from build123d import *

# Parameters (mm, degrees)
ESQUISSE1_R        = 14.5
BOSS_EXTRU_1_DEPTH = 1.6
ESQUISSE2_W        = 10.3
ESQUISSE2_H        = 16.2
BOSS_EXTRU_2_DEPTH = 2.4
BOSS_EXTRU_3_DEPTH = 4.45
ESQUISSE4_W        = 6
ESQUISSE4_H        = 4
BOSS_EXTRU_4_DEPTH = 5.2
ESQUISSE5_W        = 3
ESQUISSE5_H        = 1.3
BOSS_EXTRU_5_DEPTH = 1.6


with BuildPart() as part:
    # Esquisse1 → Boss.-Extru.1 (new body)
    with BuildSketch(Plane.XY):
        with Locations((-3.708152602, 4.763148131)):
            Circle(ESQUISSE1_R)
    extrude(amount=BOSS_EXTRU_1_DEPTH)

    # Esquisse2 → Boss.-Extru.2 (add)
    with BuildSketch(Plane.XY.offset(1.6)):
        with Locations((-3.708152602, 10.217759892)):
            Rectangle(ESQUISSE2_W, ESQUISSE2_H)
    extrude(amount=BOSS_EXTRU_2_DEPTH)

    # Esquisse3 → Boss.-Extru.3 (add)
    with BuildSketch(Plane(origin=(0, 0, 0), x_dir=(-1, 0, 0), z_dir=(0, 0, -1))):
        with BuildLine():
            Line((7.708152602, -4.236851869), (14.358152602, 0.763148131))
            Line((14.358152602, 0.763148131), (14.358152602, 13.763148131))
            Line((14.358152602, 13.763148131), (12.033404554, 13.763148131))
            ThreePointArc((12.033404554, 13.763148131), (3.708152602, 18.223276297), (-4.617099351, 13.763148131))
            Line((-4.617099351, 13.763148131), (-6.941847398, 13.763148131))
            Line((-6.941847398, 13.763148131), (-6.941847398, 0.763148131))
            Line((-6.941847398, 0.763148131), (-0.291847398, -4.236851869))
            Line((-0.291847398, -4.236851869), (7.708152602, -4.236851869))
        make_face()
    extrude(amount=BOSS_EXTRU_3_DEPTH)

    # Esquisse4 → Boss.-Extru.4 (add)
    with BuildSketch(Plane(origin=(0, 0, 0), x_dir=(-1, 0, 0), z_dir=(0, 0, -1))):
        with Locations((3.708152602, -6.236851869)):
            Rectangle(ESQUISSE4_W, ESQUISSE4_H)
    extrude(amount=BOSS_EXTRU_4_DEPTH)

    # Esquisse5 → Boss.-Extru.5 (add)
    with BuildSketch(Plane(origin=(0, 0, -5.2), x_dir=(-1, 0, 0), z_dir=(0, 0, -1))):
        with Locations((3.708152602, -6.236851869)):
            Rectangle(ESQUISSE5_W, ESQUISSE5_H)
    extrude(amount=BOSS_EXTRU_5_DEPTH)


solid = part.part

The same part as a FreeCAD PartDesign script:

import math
import FreeCAD as App
import Part
import Sketcher
Q = App.Units.Quantity

doc = App.newDocument("Part")
params = doc.addObject("Spreadsheet::Sheet", "Params")
for row, (alias, value) in enumerate([
    ("sketch1_diameter", "29 mm"),
    ("pad1_length", "1.6 mm"),
    ("sketch2_width", "10.3 mm"),
    ("sketch2_height", "16.2 mm"),
    ("pad2_length", "2.4 mm"),
    ("sketch3_radius", "10 mm"),
    ("sketch3_width", "8 mm"),
    ("sketch3_height", "13 mm"),
    ("pad3_length", "4.45 mm"),
    ("sketch4_width", "6 mm"),
    ("sketch4_height", "4 mm"),
    ("pad4_length", "5.2 mm"),
    ("sketch5_width", "3 mm"),
    ("sketch5_height", "1.3 mm"),
    ("pad5_length", "1.6 mm"),
], start=1):
    params.set(f"A{row}", alias)
    params.set(f"B{row}", "=" + value)
    params.setAlias(f"B{row}", alias)

body = doc.addObject("PartDesign::Body", "Body")

# Sketch on XY plane
sketch1 = doc.addObject("Sketcher::SketchObject", "Sketch")
body.addObject(sketch1)
sketch1.AttachmentSupport = (doc.XY_Plane, [""])
sketch1.MapMode = "FlatFace"
sketch1.addGeometry(Part.Circle(App.Vector(-3.708153, 4.763148, 0), App.Vector(0, 0, 1), 14.5), False)
sketch1.addConstraint([
    Sketcher.Constraint("Diameter", 0, Q("29 mm")),
    Sketcher.Constraint("DistanceY", -1, 1, 0, 3, Q("4.763148 mm")),
    Sketcher.Constraint("DistanceX", 0, 3, -1, 1, Q("3.708153 mm")),
])
sketch1.setExpression("Constraints[0]", "Params.sketch1_diameter")
pad1 = doc.addObject("PartDesign::Pad", "Pad")
body.addObject(pad1)
pad1.Profile = sketch1
pad1.setExpression("Length", "Params.pad1_length")

# Sketch on XY plane
sketch2 = doc.addObject("Sketcher::SketchObject", "Sketch001")
body.addObject(sketch2)
sketch2.AttachmentSupport = (doc.XY_Plane, [""])
sketch2.MapMode = "FlatFace"
sketch2.AttachmentOffset = App.Placement(App.Vector(0, 0, 1.6), App.Rotation())
sketch2.addGeometry([
    Part.LineSegment(App.Vector(-8.858153, 18.31776, 0), App.Vector(-8.858153, 2.11776, 0)),
    Part.LineSegment(App.Vector(-8.858153, 2.11776, 0), App.Vector(1.441847, 2.11776, 0)),
    Part.LineSegment(App.Vector(1.441847, 2.11776, 0), App.Vector(1.441847, 18.31776, 0)),
    Part.LineSegment(App.Vector(1.441847, 18.31776, 0), App.Vector(-8.858153, 18.31776, 0)),
], False)
sketch2.addConstraint([
    Sketcher.Constraint("Coincident", 0, 2, 1, 1),
    Sketcher.Constraint("Coincident", 1, 2, 2, 1),
    Sketcher.Constraint("Coincident", 2, 2, 3, 1),
    Sketcher.Constraint("Coincident", 3, 2, 0, 1),
    Sketcher.Constraint("Vertical", 0),
    Sketcher.Constraint("Horizontal", 1),
    Sketcher.Constraint("Vertical", 2),
    Sketcher.Constraint("Horizontal", 3),
    Sketcher.Constraint("DistanceX", 1, 1, 1, 2, Q("10.3 mm")),
    Sketcher.Constraint("DistanceY", 0, 2, 0, 1, Q("16.2 mm")),
    Sketcher.Constraint("DistanceY", -1, 1, 0, 2, Q("2.11776 mm")),
    Sketcher.Constraint("DistanceX", 0, 2, -1, 1, Q("8.858153 mm")),
])
sketch2.setExpression("Constraints[8]", "Params.sketch2_width")
sketch2.setExpression("Constraints[9]", "Params.sketch2_height")
pad2 = doc.addObject("PartDesign::Pad", "Pad001")
body.addObject(pad2)
pad2.Profile = sketch2
pad2.setExpression("Length", "Params.pad2_length")

# Sketch on XY plane
sketch3 = doc.addObject("Sketcher::SketchObject", "Sketch002")
body.addObject(sketch3)
sketch3.AttachmentSupport = (doc.XY_Plane, [""])
sketch3.MapMode = "FlatFace"
sketch3.addGeometry([
    Part.LineSegment(App.Vector(-7.708153, -4.236852, 0), App.Vector(-14.358153, 0.763148, 0)),  # 0
    Part.LineSegment(App.Vector(-14.358153, 0.763148, 0), App.Vector(-14.358153, 13.763148, 0)),  # 1
    Part.LineSegment(App.Vector(-14.358153, 13.763148, 0), App.Vector(-12.033405, 13.763148, 0)),  # 2
    Part.ArcOfCircle(Part.Circle(App.Vector(-3.708153, 8.223276, 0), App.Vector(0, 0, 1), 10), math.radians(33.640983), math.radians(146.359017)),  # 3
    Part.LineSegment(App.Vector(4.617099, 13.763148, 0), App.Vector(6.941847, 13.763148, 0)),  # 4
    Part.LineSegment(App.Vector(6.941847, 13.763148, 0), App.Vector(6.941847, 0.763148, 0)),  # 5
    Part.LineSegment(App.Vector(6.941847, 0.763148, 0), App.Vector(0.291847, -4.236852, 0)),  # 6
    Part.LineSegment(App.Vector(0.291847, -4.236852, 0), App.Vector(-7.708153, -4.236852, 0)),  # 7
], False)
sketch3.addConstraint([
    Sketcher.Constraint("Coincident", 0, 2, 1, 1),
    Sketcher.Constraint("Coincident", 1, 2, 2, 1),
    Sketcher.Constraint("Coincident", 2, 2, 3, 2),
    Sketcher.Constraint("Coincident", 3, 1, 4, 1),
    Sketcher.Constraint("Coincident", 4, 2, 5, 1),
    Sketcher.Constraint("Coincident", 5, 2, 6, 1),
    Sketcher.Constraint("Coincident", 6, 2, 7, 1),
    Sketcher.Constraint("Coincident", 7, 2, 0, 1),
    Sketcher.Constraint("Vertical", 1),
    Sketcher.Constraint("Horizontal", 2),
    Sketcher.Constraint("Horizontal", 4),
    Sketcher.Constraint("Vertical", 5),
    Sketcher.Constraint("Horizontal", 7),
    Sketcher.Constraint("Horizontal", 2, 2, 3, 1),
    Sketcher.Constraint("Horizontal", 0, 2, 5, 2),
    Sketcher.Constraint("Equal", 2, 4),
    Sketcher.Constraint("Equal", 0, 6),
    Sketcher.Constraint("Radius", 3, Q("10 mm")),
    Sketcher.Constraint("DistanceX", 7, 2, 7, 1, Q("8 mm")),
    Sketcher.Constraint("DistanceY", 1, 1, 1, 2, Q("13 mm")),
    Sketcher.Constraint("DistanceY", 6, 2, 5, 2, Q("5 mm")),
    Sketcher.Constraint("DistanceX", 1, 2, 4, 2, Q("21.3 mm")),
    Sketcher.Constraint("DistanceX", 2, 1, 2, 2, Q("2.324748 mm")),
    Sketcher.Constraint("DistanceX", -1, 1, 3, 1, Q("4.617099 mm")),
    Sketcher.Constraint("DistanceY", -1, 1, 0, 2, Q("0.763148 mm")),
])
sketch3.setExpression("Constraints[17]", "Params.sketch3_radius")
sketch3.setExpression("Constraints[18]", "Params.sketch3_width")
sketch3.setExpression("Constraints[19]", "Params.sketch3_height")
pad3 = doc.addObject("PartDesign::Pad", "Pad002")
body.addObject(pad3)
pad3.Profile = sketch3
pad3.setExpression("Length", "Params.pad3_length")
pad3.Reversed = True

# Sketch on XY plane
sketch4 = doc.addObject("Sketcher::SketchObject", "Sketch003")
body.addObject(sketch4)
sketch4.AttachmentSupport = (doc.XY_Plane, [""])
sketch4.MapMode = "FlatFace"
sketch4.addGeometry([
    Part.LineSegment(App.Vector(-0.708153, -4.236852, 0), App.Vector(-0.708153, -8.236852, 0)),
    Part.LineSegment(App.Vector(-0.708153, -8.236852, 0), App.Vector(-6.708153, -8.236852, 0)),
    Part.LineSegment(App.Vector(-6.708153, -8.236852, 0), App.Vector(-6.708153, -4.236852, 0)),
    Part.LineSegment(App.Vector(-6.708153, -4.236852, 0), App.Vector(-0.708153, -4.236852, 0)),
], False)
sketch4.addConstraint([
    Sketcher.Constraint("Coincident", 0, 2, 1, 1),
    Sketcher.Constraint("Coincident", 1, 2, 2, 1),
    Sketcher.Constraint("Coincident", 2, 2, 3, 1),
    Sketcher.Constraint("Coincident", 3, 2, 0, 1),
    Sketcher.Constraint("Vertical", 0),
    Sketcher.Constraint("Horizontal", 1),
    Sketcher.Constraint("Vertical", 2),
    Sketcher.Constraint("Horizontal", 3),
    Sketcher.Constraint("DistanceX", 1, 2, 1, 1, Q("6 mm")),
    Sketcher.Constraint("DistanceY", 0, 2, 0, 1, Q("4 mm")),
    Sketcher.Constraint("DistanceY", 0, 2, -1, 1, Q("8.236852 mm")),
    Sketcher.Constraint("DistanceX", 0, 2, -1, 1, Q("0.708153 mm")),
])
sketch4.setExpression("Constraints[8]", "Params.sketch4_width")
sketch4.setExpression("Constraints[9]", "Params.sketch4_height")
pad4 = doc.addObject("PartDesign::Pad", "Pad003")
body.addObject(pad4)
pad4.Profile = sketch4
pad4.setExpression("Length", "Params.pad4_length")
pad4.Reversed = True

# Sketch on XY plane
sketch5 = doc.addObject("Sketcher::SketchObject", "Sketch004")
body.addObject(sketch5)
sketch5.AttachmentSupport = (doc.XY_Plane, [""])
sketch5.MapMode = "FlatFace"
sketch5.AttachmentOffset = App.Placement(App.Vector(0, 0, -5.2), App.Rotation())
sketch5.addGeometry([
    Part.LineSegment(App.Vector(-2.208153, -5.586852, 0), App.Vector(-2.208153, -6.886852, 0)),
    Part.LineSegment(App.Vector(-2.208153, -6.886852, 0), App.Vector(-5.208153, -6.886852, 0)),
    Part.LineSegment(App.Vector(-5.208153, -6.886852, 0), App.Vector(-5.208153, -5.586852, 0)),
    Part.LineSegment(App.Vector(-5.208153, -5.586852, 0), App.Vector(-2.208153, -5.586852, 0)),
], False)
sketch5.addConstraint([
    Sketcher.Constraint("Coincident", 0, 2, 1, 1),
    Sketcher.Constraint("Coincident", 1, 2, 2, 1),
    Sketcher.Constraint("Coincident", 2, 2, 3, 1),
    Sketcher.Constraint("Coincident", 3, 2, 0, 1),
    Sketcher.Constraint("Vertical", 0),
    Sketcher.Constraint("Horizontal", 1),
    Sketcher.Constraint("Vertical", 2),
    Sketcher.Constraint("Horizontal", 3),
    Sketcher.Constraint("DistanceX", 1, 2, 1, 1, Q("3 mm")),
    Sketcher.Constraint("DistanceY", 0, 2, 0, 1, Q("1.3 mm")),
    Sketcher.Constraint("DistanceY", 0, 2, -1, 1, Q("6.886852 mm")),
    Sketcher.Constraint("DistanceX", 0, 2, -1, 1, Q("2.208153 mm")),
])
sketch5.setExpression("Constraints[8]", "Params.sketch5_width")
sketch5.setExpression("Constraints[9]", "Params.sketch5_height")
pad5 = doc.addObject("PartDesign::Pad", "Pad004")
body.addObject(pad5)
pad5.Profile = sketch5
pad5.setExpression("Length", "Params.pad5_length")
pad5.Reversed = True

doc.recompute()
